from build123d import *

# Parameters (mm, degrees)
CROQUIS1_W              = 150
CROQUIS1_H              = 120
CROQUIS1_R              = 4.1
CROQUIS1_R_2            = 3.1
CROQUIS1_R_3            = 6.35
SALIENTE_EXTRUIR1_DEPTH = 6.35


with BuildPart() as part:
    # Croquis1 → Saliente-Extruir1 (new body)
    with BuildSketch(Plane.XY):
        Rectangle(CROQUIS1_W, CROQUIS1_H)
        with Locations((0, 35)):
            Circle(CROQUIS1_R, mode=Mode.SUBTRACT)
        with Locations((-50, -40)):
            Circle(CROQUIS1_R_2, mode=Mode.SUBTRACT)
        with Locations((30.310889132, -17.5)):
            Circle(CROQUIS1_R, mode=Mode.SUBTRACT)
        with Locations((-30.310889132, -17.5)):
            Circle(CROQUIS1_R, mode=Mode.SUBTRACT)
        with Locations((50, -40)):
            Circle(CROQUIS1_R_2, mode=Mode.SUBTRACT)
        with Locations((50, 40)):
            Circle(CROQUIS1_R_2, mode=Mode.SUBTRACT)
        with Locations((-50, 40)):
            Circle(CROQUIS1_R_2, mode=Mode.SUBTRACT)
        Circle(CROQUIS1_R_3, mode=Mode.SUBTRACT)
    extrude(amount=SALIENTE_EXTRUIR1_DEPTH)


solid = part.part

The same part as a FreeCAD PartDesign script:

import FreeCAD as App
import Part
import Sketcher

V = App.Vector
Q = App.Units.Quantity

doc = App.newDocument("Part")
body = doc.addObject("PartDesign::Body", "Body")

sketch1 = doc.addObject("Sketcher::SketchObject", "Sketch")
body.addObject(sketch1)
sketch1.AttachmentSupport = (doc.XY_Plane, [""])
sketch1.MapMode = "FlatFace"
sketch1.addGeometry(Part.LineSegment(V(-75, 60, 0), V(-75, -60, 0)), False)
sketch1.addGeometry(Part.LineSegment(V(-75, -60, 0), V(75, -60, 0)), False)
sketch1.addGeometry(Part.LineSegment(V(75, -60, 0), V(75, 60, 0)), False)
sketch1.addGeometry(Part.LineSegment(V(75, 60, 0), V(-75, 60, 0)), False)
sketch1.addGeometry(Part.Circle(V(-50, -40, 0), V(0, 0, 1), 3.1), False)
sketch1.addGeometry(Part.Circle(V(-30.3, -17.5, 0), V(0, 0, 1), 4.1), False)
sketch1.addGeometry(Part.Circle(V(50, -40, 0), V(0, 0, 1), 3.1), False)
sketch1.addGeometry(Part.Circle(V(30.3, -17.5, 0), V(0, 0, 1), 4.1), False)
sketch1.addGeometry(Part.Circle(V(-50, 40, 0), V(0, 0, 1), 3.1), False)
sketch1.addGeometry(Part.Circle(V(0, 0, 0), V(0, 0, 1), 6.3), False)
sketch1.addGeometry(Part.Circle(V(0, 35, 0), V(0, 0, 1), 4.1), False)
sketch1.addGeometry(Part.Circle(V(50, 40, 0), V(0, 0, 1), 3.1), False)
sketch1.addConstraint(Sketcher.Constraint("Coincident", 0, 2, 1, 1))
sketch1.addConstraint(Sketcher.Constraint("Coincident", 1, 2, 2, 1))
sketch1.addConstraint(Sketcher.Constraint("Coincident", 2, 2, 3, 1))
sketch1.addConstraint(Sketcher.Constraint("Coincident", 3, 2, 0, 1))
sketch1.addConstraint(Sketcher.Constraint("Vertical", 0))
sketch1.addConstraint(Sketcher.Constraint("Horizontal", 1))
sketch1.addConstraint(Sketcher.Constraint("Vertical", 2))
sketch1.addConstraint(Sketcher.Constraint("Horizontal", 3))
sketch1.addConstraint(Sketcher.Constraint("Coincident", 9, 3, -1, 1))
sketch1.addConstraint(Sketcher.Constraint("Equal", 4, 6))
sketch1.addConstraint(Sketcher.Constraint("Equal", 5, 7))
sketch1.addConstraint(Sketcher.Constraint("Equal", 6, 8))
sketch1.addConstraint(Sketcher.Constraint("Equal", 7, 10))
sketch1.addConstraint(Sketcher.Constraint("Equal", 8, 11))
sketch1.addConstraint(Sketcher.Constraint("Symmetric", 6, 3, 8, 3, -1, 1))
sketch1.addConstraint(Sketcher.Constraint("Symmetric", 4, 3, 11, 3, -1, 1))
sketch1.addConstraint(Sketcher.Constraint("Symmetric", 0, 2, 2, 2, -1, 1))
sketch1.addConstraint(Sketcher.Constraint("Symmetric", 4, 3, 6, 3, -2))
sketch1.addConstraint(Sketcher.Constraint("Symmetric", 5, 3, 7, 3, -2))
sketch1.addConstraint(Sketcher.Constraint("PointOnObject", 10, 3, -2))
sketch1.addConstraint(Sketcher.Constraint("Diameter", 4, Q("6.2 mm")))
sketch1.addConstraint(Sketcher.Constraint("Diameter", 5, Q("8.2 mm")))
sketch1.addConstraint(Sketcher.Constraint("Diameter", 9, Q("12.7 mm")))
sketch1.addConstraint(Sketcher.Constraint("DistanceX", 1, 1, 1, 2, Q("150 mm")))
sketch1.addConstraint(Sketcher.Constraint("DistanceY", 0, 2, 0, 1, Q("120 mm")))
sketch1.addConstraint(Sketcher.Constraint("DistanceX", 4, 3, -1, 1, Q("50 mm")))
sketch1.addConstraint(Sketcher.Constraint("DistanceY", 4, 3, -1, 1, Q("40 mm")))
sketch1.addConstraint(Sketcher.Constraint("DistanceY", -1, 1, 10, 3, Q("35 mm")))
sketch1.addConstraint(Sketcher.Constraint("DistanceY", 5, 3, -1, 1, Q("17.5 mm")))
sketch1.addConstraint(Sketcher.Constraint("DistanceX", 5, 3, -1, 1, Q("30.310889 mm")))
pad1 = doc.addObject("PartDesign::Pad", "Pad")
body.addObject(pad1)
pad1.Profile = sketch1
pad1.Length = 6.35

doc.recompute()
